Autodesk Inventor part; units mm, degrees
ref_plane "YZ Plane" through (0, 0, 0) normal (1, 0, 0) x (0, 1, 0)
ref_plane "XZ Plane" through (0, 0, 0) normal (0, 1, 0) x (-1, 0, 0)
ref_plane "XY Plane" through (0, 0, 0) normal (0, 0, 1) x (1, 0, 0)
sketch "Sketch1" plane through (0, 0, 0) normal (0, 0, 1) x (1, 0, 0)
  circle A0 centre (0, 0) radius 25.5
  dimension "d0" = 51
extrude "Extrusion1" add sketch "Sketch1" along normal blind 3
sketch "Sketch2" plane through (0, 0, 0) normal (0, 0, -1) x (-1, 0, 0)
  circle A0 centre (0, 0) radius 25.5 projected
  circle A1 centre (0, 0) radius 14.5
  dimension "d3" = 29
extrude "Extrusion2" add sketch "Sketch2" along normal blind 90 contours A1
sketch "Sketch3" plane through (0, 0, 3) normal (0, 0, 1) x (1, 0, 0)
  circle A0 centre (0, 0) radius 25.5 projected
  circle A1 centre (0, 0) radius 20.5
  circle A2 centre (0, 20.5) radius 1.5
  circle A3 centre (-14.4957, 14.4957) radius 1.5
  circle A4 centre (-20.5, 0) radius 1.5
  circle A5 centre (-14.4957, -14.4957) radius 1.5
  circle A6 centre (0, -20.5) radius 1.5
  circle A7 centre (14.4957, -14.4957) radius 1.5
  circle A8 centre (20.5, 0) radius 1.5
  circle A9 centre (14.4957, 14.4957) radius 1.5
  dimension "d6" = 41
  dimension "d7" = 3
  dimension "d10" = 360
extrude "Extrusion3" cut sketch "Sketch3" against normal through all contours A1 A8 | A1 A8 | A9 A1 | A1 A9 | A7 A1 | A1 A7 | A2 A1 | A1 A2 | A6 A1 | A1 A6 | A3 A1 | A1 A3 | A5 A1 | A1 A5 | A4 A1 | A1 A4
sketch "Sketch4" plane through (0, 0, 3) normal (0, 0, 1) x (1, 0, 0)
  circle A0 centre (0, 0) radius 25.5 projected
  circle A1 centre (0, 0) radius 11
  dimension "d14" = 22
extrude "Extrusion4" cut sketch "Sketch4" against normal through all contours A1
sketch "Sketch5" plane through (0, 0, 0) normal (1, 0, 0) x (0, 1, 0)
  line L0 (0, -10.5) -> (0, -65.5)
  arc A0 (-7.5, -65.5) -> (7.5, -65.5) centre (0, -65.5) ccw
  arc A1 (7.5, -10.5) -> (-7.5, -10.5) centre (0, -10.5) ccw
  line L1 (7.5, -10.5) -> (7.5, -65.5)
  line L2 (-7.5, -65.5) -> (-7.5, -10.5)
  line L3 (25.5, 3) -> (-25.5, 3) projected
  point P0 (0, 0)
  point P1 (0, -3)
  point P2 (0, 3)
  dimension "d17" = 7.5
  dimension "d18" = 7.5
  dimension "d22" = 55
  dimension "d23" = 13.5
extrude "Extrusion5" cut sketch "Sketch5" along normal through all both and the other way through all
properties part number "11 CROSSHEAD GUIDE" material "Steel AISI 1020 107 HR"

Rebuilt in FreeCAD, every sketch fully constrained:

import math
import FreeCAD as App
import Part
import Sketcher
from FreeCAD import Vector
Q = App.Units.Quantity

doc = App.newDocument("Part")
body = doc.addObject("PartDesign::Body", "Body")

# Sketch on XY plane
sketch1 = body.newObject("Sketcher::SketchObject", "Sketch")
sketch1.AttachmentSupport = (doc.getObject("XY_Plane"), [""])
sketch1.MapMode = "FlatFace"
sketch1.addGeometry(Part.Circle(Vector(0, 0, 0), Vector(0, 0, 1), 26), False)
sketch1.addConstraint(Sketcher.Constraint("Coincident", 0, 3, -1, 1))
sketch1.addConstraint(Sketcher.Constraint("Diameter", 0, Q("51 mm")))
pad1 = body.newObject("PartDesign::Pad", "Pad")
pad1.Profile = sketch1
pad1.Length = 3

# Sketch on XY plane
sketch2 = body.newObject("Sketcher::SketchObject", "Sketch001")
sketch2.AttachmentSupport = (doc.getObject("XY_Plane"), [""])
sketch2.MapMode = "FlatFace"
sketch2.addGeometry(Part.Circle(Vector(0, 0, 0), Vector(0, 0, 1), 14), False)
sketch2.addConstraint(Sketcher.Constraint("Coincident", 0, 3, -1, 1))
sketch2.addConstraint(Sketcher.Constraint("Diameter", 0, Q("29 mm")))
pad2 = body.newObject("PartDesign::Pad", "Pad001")
pad2.Profile = sketch2
pad2.Length = 90
pad2.Reversed = True

# Sketch on XY plane
sketch3 = body.newObject("Sketcher::SketchObject", "Sketch002")
sketch3.AttachmentSupport = (doc.getObject("XY_Plane"), [""])
sketch3.MapMode = "FlatFace"
sketch3.AttachmentOffset = App.Placement(Vector(0, 0, 3), App.Rotation())
sketch3.addGeometry(Part.Circle(Vector(20.5, 0, 0), Vector(0, 0, 1), 1.5), False)
sketch3.addGeometry(Part.Circle(Vector(14.5, 14.5, 0), Vector(0, 0, 1), 1.5), False)
sketch3.addGeometry(Part.Circle(Vector(14.5, -14.5, 0), Vector(0, 0, 1), 1.5), False)
sketch3.addGeometry(Part.Circle(Vector(0, 20.5, 0), Vector(0, 0, 1), 1.5), False)
sketch3.addGeometry(Part.Circle(Vector(0, -20.5, 0), Vector(0, 0, 1), 1.5), False)
sketch3.addGeometry(Part.Circle(Vector(-14.5, 14.5, 0), Vector(0, 0, 1), 1.5), False)
sketch3.addGeometry(Part.Circle(Vector(-14.5, -14.5, 0), Vector(0, 0, 1), 1.5), False)
sketch3.addGeometry(Part.Circle(Vector(-20.5, 0, 0), Vector(0, 0, 1), 1.5), False)
sketch3.addConstraint(Sketcher.Constraint("Equal", 0, 1))
sketch3.addConstraint(Sketcher.Constraint("Equal", 1, 2))
sketch3.addConstraint(Sketcher.Constraint("Equal", 2, 3))
sketch3.addConstraint(Sketcher.Constraint("Equal", 3, 4))
sketch3.addConstraint(Sketcher.Constraint("Equal", 4, 5))
sketch3.addConstraint(Sketcher.Constraint("Equal", 5, 6))
sketch3.addConstraint(Sketcher.Constraint("Equal", 6, 7))
sketch3.addConstraint(Sketcher.Constraint("Symmetric", 3, 3, 4, 3, -1, 1))
sketch3.addConstraint(Sketcher.Constraint("Symmetric", 2, 3, 5, 3, -1, 1))
sketch3.addConstraint(Sketcher.Constraint("Symmetric", 1, 3, 6, 3, -1, 1))
sketch3.addConstraint(Sketcher.Constraint("Symmetric", 0, 3, 7, 3, -1, 1))
sketch3.addConstraint(Sketcher.Constraint("Symmetric", 1, 3, 5, 3, -2))
sketch3.addConstraint(Sketcher.Constraint("PointOnObject", 0, 3, -1))
sketch3.addConstraint(Sketcher.Constraint("PointOnObject", 3, 3, -2))
sketch3.addConstraint(Sketcher.Constraint("Diameter", 0, Q("3 mm")))
sketch3.addConstraint(Sketcher.Constraint("DistanceY", 4, 3, 3, 3, Q("41 mm")))
sketch3.addConstraint(Sketcher.Constraint("DistanceX", -1, 1, 0, 3, Q("20.5 mm")))
sketch3.addConstraint(Sketcher.Constraint("DistanceX", -1, 1, 1, 3, Q("14.4957 mm")))
sketch3.addConstraint(Sketcher.Constraint("DistanceY", -1, 1, 1, 3, Q("14.4957 mm")))
pocket1 = body.newObject("PartDesign::Pocket", "Pocket")
pocket1.Profile = sketch3
pocket1.Type = "ThroughAll"

# Sketch on XY plane
sketch4 = body.newObject("Sketcher::SketchObject", "Sketch003")
sketch4.AttachmentSupport = (doc.getObject("XY_Plane"), [""])
sketch4.MapMode = "FlatFace"
sketch4.AttachmentOffset = App.Placement(Vector(0, 0, 3), App.Rotation())
sketch4.addGeometry(Part.Circle(Vector(0, 0, 0), Vector(0, 0, 1), 11), False)
sketch4.addConstraint(Sketcher.Constraint("Coincident", 0, 3, -1, 1))
sketch4.addConstraint(Sketcher.Constraint("Diameter", 0, Q("22 mm")))
pocket2 = body.newObject("PartDesign::Pocket", "Pocket001")
pocket2.Profile = sketch4
pocket2.Type = "ThroughAll"

# Sketch on YZ plane
sketch5 = body.newObject("Sketcher::SketchObject", "Sketch004")
sketch5.AttachmentSupport = (doc.getObject("YZ_Plane"), [""])
sketch5.MapMode = "FlatFace"
sketch5.addGeometry(Part.LineSegment(Vector(-8, -10, 0), Vector(-8, -66, 0)), False)
sketch5.addGeometry(Part.ArcOfCircle(Part.Circle(Vector(0, -66, 0), Vector(0, 0, 1), 8), math.radians(180), math.radians(360)), False)
sketch5.addGeometry(Part.LineSegment(Vector(8, -66, 0), Vector(8, -10, 0)), False)
sketch5.addGeometry(Part.ArcOfCircle(Part.Circle(Vector(0, -10, 0), Vector(0, 0, 1), 8), math.radians(0), math.radians(180)), False)
sketch5.addConstraint(Sketcher.Constraint("Tangent", 0, 2, 1, 1))
sketch5.addConstraint(Sketcher.Constraint("Tangent", 1, 2, 2, 1))
sketch5.addConstraint(Sketcher.Constraint("Tangent", 2, 2, 3, 1))
sketch5.addConstraint(Sketcher.Constraint("Tangent", 3, 2, 0, 1))
sketch5.addConstraint(Sketcher.Constraint("Vertical", 0))
sketch5.addConstraint(Sketcher.Constraint("Vertical", 2))
sketch5.addConstraint(Sketcher.Constraint("PointOnObject", 1, 3, -2))
sketch5.addConstraint(Sketcher.Constraint("Radius", 1, Q("7.5 mm")))
sketch5.addConstraint(Sketcher.Constraint("DistanceY", 0, 2, 0, 1, Q("55 mm")))
sketch5.addConstraint(Sketcher.Constraint("DistanceY", 1, 3, -1, 1, Q("65.5 mm")))
pocket3 = body.newObject("PartDesign::Pocket", "Pocket002")
pocket3.Profile = sketch5
pocket3.Type = "ThroughAll"
pocket3.Midplane = True

doc.recompute()
